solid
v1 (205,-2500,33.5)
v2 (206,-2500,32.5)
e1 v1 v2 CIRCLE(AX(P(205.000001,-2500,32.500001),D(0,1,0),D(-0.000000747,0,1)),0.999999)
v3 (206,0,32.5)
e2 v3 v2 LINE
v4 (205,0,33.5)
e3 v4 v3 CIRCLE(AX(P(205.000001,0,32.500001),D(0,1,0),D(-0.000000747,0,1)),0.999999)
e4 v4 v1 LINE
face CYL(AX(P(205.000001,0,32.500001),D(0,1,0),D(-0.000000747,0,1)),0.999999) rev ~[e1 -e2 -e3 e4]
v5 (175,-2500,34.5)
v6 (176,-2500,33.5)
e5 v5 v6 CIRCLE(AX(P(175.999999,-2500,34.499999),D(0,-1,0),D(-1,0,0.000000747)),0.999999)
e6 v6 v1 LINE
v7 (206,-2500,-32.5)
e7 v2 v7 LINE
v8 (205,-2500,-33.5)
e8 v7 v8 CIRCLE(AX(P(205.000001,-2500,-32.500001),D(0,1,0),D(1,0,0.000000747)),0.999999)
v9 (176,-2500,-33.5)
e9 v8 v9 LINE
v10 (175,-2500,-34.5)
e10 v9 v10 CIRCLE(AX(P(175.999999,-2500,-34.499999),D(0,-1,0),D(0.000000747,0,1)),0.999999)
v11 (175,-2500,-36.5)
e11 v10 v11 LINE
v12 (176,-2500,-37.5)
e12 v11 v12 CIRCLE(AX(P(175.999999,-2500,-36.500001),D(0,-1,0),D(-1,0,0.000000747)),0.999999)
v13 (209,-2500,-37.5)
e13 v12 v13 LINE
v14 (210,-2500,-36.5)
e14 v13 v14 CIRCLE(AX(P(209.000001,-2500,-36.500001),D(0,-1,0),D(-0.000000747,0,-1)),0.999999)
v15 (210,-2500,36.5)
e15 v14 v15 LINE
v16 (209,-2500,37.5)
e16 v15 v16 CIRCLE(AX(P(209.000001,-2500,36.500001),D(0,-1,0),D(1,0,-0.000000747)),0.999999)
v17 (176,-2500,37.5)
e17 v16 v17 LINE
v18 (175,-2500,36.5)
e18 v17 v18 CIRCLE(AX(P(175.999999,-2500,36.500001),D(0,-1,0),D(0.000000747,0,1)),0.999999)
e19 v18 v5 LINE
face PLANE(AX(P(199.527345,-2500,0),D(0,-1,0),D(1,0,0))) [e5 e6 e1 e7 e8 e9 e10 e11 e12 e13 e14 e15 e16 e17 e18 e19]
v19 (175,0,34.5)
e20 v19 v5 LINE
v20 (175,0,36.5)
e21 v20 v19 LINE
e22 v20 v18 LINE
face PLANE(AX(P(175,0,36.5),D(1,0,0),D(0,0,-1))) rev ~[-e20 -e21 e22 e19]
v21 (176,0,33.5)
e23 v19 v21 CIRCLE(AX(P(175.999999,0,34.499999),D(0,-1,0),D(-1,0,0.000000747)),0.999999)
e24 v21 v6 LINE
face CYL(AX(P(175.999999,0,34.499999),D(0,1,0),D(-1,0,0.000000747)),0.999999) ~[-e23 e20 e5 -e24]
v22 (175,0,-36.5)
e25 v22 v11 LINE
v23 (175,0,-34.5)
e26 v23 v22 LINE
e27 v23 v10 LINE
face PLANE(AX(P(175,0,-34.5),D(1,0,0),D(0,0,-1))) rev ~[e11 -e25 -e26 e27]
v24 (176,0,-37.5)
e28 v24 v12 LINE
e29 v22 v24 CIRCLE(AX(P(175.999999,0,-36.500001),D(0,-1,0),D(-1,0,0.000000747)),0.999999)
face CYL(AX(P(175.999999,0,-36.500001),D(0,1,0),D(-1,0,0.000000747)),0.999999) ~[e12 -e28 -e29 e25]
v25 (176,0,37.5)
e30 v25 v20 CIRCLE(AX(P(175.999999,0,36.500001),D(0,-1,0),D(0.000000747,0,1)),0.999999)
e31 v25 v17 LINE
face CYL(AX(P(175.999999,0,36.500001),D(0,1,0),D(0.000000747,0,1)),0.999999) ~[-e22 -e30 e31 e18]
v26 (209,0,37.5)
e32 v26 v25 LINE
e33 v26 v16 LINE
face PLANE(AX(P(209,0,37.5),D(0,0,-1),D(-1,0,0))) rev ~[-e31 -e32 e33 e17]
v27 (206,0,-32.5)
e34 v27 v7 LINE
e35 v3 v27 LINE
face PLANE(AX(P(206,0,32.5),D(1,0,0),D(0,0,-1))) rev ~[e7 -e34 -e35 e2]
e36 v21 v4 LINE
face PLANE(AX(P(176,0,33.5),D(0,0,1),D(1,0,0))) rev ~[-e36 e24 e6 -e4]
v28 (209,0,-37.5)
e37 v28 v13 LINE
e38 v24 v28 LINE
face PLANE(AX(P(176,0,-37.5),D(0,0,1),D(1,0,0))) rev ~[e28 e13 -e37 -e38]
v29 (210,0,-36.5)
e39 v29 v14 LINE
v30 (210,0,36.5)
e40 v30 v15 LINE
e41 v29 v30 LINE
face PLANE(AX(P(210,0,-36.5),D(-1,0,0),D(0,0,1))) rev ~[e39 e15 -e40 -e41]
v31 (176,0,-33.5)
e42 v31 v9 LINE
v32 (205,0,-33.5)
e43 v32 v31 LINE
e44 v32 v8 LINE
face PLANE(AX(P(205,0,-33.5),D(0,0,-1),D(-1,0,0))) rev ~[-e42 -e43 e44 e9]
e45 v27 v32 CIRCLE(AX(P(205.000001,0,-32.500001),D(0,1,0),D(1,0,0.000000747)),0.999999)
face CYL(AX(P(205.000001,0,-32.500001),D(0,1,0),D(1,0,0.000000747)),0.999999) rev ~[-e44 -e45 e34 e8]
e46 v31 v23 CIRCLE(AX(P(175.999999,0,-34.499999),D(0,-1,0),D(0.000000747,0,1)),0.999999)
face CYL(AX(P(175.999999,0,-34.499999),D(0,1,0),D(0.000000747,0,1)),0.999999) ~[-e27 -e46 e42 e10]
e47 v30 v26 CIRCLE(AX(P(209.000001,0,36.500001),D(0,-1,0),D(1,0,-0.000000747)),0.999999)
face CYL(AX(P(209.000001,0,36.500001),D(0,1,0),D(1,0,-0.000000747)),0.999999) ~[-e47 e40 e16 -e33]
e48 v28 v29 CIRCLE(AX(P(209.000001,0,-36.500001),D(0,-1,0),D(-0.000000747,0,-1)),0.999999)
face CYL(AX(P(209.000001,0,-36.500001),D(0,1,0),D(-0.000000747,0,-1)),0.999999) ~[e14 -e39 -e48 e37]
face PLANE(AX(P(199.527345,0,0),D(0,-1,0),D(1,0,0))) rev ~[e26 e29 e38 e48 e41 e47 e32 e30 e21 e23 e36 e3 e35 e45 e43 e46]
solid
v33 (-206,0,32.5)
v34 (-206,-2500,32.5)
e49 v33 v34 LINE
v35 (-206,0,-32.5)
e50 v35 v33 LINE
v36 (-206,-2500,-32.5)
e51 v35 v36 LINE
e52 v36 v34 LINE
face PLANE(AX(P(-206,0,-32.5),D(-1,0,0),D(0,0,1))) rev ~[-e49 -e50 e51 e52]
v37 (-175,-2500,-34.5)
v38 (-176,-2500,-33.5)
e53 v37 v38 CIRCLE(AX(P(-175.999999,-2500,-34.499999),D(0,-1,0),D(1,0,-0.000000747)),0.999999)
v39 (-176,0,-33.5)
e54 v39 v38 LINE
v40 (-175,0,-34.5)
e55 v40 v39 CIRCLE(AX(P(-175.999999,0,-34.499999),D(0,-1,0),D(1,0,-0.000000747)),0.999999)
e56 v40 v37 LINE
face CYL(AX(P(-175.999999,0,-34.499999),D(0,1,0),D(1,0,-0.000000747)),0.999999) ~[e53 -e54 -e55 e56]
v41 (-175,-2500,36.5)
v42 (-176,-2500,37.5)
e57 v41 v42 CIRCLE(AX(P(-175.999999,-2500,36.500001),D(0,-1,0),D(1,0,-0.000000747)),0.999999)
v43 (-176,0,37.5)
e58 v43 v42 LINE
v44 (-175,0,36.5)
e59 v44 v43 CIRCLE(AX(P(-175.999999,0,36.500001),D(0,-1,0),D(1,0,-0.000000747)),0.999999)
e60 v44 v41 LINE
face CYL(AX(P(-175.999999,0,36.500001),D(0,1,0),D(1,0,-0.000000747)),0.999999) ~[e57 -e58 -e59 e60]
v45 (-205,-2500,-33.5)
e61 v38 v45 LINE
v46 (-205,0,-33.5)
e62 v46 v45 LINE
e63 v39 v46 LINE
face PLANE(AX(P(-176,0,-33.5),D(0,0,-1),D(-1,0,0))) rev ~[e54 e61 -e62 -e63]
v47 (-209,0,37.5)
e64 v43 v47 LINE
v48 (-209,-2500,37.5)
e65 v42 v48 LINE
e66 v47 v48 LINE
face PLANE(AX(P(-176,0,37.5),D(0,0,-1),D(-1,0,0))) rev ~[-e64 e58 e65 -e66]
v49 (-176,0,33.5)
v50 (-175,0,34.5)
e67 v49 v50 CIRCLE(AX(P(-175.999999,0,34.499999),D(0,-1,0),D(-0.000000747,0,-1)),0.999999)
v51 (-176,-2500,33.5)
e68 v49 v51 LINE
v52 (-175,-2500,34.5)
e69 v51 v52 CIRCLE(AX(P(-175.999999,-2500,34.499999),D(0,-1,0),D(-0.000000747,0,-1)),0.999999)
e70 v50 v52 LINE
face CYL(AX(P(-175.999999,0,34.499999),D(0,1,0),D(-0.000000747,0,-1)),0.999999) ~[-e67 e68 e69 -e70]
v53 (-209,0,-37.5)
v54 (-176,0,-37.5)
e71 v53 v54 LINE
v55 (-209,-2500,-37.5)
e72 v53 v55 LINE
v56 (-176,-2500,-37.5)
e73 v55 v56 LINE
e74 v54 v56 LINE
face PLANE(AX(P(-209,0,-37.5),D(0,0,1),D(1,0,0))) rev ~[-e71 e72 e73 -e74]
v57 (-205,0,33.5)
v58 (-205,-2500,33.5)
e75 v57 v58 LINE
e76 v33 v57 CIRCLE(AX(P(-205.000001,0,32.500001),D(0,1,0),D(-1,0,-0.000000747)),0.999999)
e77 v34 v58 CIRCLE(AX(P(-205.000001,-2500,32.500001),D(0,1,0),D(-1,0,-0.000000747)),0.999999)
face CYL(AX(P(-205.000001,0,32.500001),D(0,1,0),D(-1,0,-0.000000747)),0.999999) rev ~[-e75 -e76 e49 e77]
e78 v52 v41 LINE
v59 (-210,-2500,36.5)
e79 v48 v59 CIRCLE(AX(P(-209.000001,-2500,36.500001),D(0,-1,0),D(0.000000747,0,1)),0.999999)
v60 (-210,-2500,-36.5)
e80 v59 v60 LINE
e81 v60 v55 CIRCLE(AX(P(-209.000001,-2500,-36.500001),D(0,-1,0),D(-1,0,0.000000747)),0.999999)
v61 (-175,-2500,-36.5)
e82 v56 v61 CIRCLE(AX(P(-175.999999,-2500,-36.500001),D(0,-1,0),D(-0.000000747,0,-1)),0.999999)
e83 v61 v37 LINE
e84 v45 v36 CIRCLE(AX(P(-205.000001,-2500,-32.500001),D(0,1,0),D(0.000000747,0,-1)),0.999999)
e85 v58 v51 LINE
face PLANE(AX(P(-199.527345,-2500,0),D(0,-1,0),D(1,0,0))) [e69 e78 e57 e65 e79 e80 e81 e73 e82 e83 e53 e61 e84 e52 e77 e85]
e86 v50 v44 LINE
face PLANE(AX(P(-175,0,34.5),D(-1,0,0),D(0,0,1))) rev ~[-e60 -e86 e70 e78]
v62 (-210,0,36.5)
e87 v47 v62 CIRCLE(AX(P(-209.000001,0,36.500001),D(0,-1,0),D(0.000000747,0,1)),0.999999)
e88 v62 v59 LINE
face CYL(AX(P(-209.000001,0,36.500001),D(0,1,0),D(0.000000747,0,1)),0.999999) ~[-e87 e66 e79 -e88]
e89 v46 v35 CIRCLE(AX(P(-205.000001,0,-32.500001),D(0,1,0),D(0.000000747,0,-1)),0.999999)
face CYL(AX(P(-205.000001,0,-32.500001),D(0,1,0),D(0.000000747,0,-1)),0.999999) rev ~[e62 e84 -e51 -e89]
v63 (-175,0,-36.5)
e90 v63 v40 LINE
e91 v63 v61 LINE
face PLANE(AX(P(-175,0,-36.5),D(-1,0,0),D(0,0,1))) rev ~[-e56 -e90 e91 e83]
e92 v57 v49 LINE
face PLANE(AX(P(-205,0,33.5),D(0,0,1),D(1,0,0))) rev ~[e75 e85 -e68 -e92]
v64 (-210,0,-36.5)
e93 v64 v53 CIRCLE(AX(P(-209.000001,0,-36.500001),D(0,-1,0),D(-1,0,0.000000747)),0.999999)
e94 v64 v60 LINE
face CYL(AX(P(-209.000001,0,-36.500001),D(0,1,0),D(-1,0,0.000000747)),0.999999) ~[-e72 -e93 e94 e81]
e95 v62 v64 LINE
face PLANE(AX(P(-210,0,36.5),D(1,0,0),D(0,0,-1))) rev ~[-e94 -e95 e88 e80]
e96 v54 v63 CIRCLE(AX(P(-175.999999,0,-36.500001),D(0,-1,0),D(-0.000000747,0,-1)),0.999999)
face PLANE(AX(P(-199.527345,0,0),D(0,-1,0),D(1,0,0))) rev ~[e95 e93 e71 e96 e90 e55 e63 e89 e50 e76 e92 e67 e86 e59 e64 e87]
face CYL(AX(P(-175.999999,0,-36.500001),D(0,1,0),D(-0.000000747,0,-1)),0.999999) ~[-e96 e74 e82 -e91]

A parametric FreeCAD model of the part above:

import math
import FreeCAD as App
import Part
import Sketcher
Q = App.Units.Quantity

doc = App.newDocument("Part")
body = doc.addObject("PartDesign::Body", "Body")
body.AllowCompound = True

# Sketch on XZ plane
sketch1 = body.newObject("Sketcher::SketchObject", "Sketch")
sketch1.AttachmentSupport = (doc.getObject("XZ_Plane"), [""])
sketch1.MapMode = "FlatFace"
sketch1.addGeometry([
    Part.ArcOfCircle(Part.Circle(App.Vector(-205, 32.5, 0), App.Vector(0, 0, 1), 1), math.radians(90), math.radians(180)),  # 0
    Part.LineSegment(App.Vector(-205, 33.5, 0), App.Vector(-176, 33.5, 0)),  # 1
    Part.ArcOfCircle(Part.Circle(App.Vector(-176, 34.5, 0), App.Vector(0, 0, 1), 1), math.radians(-90), math.radians(0)),  # 2
    Part.LineSegment(App.Vector(-175, 34.5, 0), App.Vector(-175, 36.5, 0)),  # 3
    Part.ArcOfCircle(Part.Circle(App.Vector(-176, 36.5, 0), App.Vector(0, 0, 1), 1), math.radians(0), math.radians(90)),  # 4
    Part.LineSegment(App.Vector(-176, 37.5, 0), App.Vector(-209, 37.5, 0)),  # 5
    Part.ArcOfCircle(Part.Circle(App.Vector(-209, 36.5, 0), App.Vector(0, 0, 1), 1), math.radians(90), math.radians(180)),  # 6
    Part.LineSegment(App.Vector(-210, 36.5, 0), App.Vector(-210, -36.5, 0)),  # 7
    Part.ArcOfCircle(Part.Circle(App.Vector(-209, -36.5, 0), App.Vector(0, 0, 1), 1), math.radians(180), math.radians(270)),  # 8
    Part.LineSegment(App.Vector(-209, -37.5, 0), App.Vector(-176, -37.5, 0)),  # 9
    Part.ArcOfCircle(Part.Circle(App.Vector(-176, -36.5, 0), App.Vector(0, 0, 1), 1), math.radians(-90), math.radians(0)),  # 10
    Part.LineSegment(App.Vector(-175, -36.5, 0), App.Vector(-175, -34.5, 0)),  # 11
    Part.ArcOfCircle(Part.Circle(App.Vector(-176, -34.5, 0), App.Vector(0, 0, 1), 1), math.radians(0), math.radians(90)),  # 12
    Part.LineSegment(App.Vector(-176, -33.5, 0), App.Vector(-205, -33.5, 0)),  # 13
    Part.ArcOfCircle(Part.Circle(App.Vector(-205, -32.5, 0), App.Vector(0, 0, 1), 1), math.radians(180), math.radians(270)),  # 14
    Part.LineSegment(App.Vector(-206, -32.5, 0), App.Vector(-206, 32.5, 0)),  # 15
    Part.LineSegment(App.Vector(206, 32.5, 0), App.Vector(206, -32.5, 0)),  # 16
    Part.ArcOfCircle(Part.Circle(App.Vector(205, -32.5, 0), App.Vector(0, 0, 1), 1), math.radians(-90), math.radians(0)),  # 17
    Part.LineSegment(App.Vector(205, -33.5, 0), App.Vector(176, -33.5, 0)),  # 18
    Part.ArcOfCircle(Part.Circle(App.Vector(176, -34.5, 0), App.Vector(0, 0, 1), 1), math.radians(90), math.radians(180)),  # 19
    Part.LineSegment(App.Vector(175, -34.5, 0), App.Vector(175, -36.5, 0)),  # 20
    Part.ArcOfCircle(Part.Circle(App.Vector(176, -36.5, 0), App.Vector(0, 0, 1), 1), math.radians(180), math.radians(270)),  # 21
    Part.LineSegment(App.Vector(176, -37.5, 0), App.Vector(209, -37.5, 0)),  # 22
    Part.ArcOfCircle(Part.Circle(App.Vector(209, -36.5, 0), App.Vector(0, 0, 1), 1), math.radians(-90), math.radians(0)),  # 23
    Part.LineSegment(App.Vector(210, -36.5, 0), App.Vector(210, 36.5, 0)),  # 24
    Part.ArcOfCircle(Part.Circle(App.Vector(209, 36.5, 0), App.Vector(0, 0, 1), 1), math.radians(0), math.radians(90)),  # 25
    Part.LineSegment(App.Vector(209, 37.5, 0), App.Vector(176, 37.5, 0)),  # 26
    Part.ArcOfCircle(Part.Circle(App.Vector(176, 36.5, 0), App.Vector(0, 0, 1), 1), math.radians(90), math.radians(180)),  # 27
    Part.LineSegment(App.Vector(175, 36.5, 0), App.Vector(175, 34.5, 0)),  # 28
    Part.ArcOfCircle(Part.Circle(App.Vector(176, 34.5, 0), App.Vector(0, 0, 1), 1), math.radians(180), math.radians(270)),  # 29
    Part.LineSegment(App.Vector(176, 33.5, 0), App.Vector(205, 33.5, 0)),  # 30
    Part.ArcOfCircle(Part.Circle(App.Vector(205, 32.5, 0), App.Vector(0, 0, 1), 1), math.radians(0), math.radians(90)),  # 31
], False)
sketch1.addConstraint([
    Sketcher.Constraint("Tangent", 0, 1, 1, 1),
    Sketcher.Constraint("Tangent", 1, 2, 2, 1),
    Sketcher.Constraint("Tangent", 2, 2, 3, 1),
    Sketcher.Constraint("Tangent", 3, 2, 4, 1),
    Sketcher.Constraint("Tangent", 4, 2, 5, 1),
    Sketcher.Constraint("Tangent", 5, 2, 6, 1),
    Sketcher.Constraint("Tangent", 6, 2, 7, 1),
    Sketcher.Constraint("Tangent", 7, 2, 8, 1),
    Sketcher.Constraint("Tangent", 8, 2, 9, 1),
    Sketcher.Constraint("Tangent", 9, 2, 10, 1),
    Sketcher.Constraint("Tangent", 10, 2, 11, 1),
    Sketcher.Constraint("Tangent", 11, 2, 12, 1),
    Sketcher.Constraint("Tangent", 12, 2, 13, 1),
    Sketcher.Constraint("Tangent", 13, 2, 14, 2),
    Sketcher.Constraint("Tangent", 14, 1, 15, 1),
    Sketcher.Constraint("Tangent", 15, 2, 0, 2),
    Sketcher.Constraint("Tangent", 16, 2, 17, 2),
    Sketcher.Constraint("Tangent", 17, 1, 18, 1),
    Sketcher.Constraint("Tangent", 18, 2, 19, 1),
    Sketcher.Constraint("Tangent", 19, 2, 20, 1),
    Sketcher.Constraint("Tangent", 20, 2, 21, 1),
    Sketcher.Constraint("Tangent", 21, 2, 22, 1),
    Sketcher.Constraint("Tangent", 22, 2, 23, 1),
    Sketcher.Constraint("Tangent", 23, 2, 24, 1),
    Sketcher.Constraint("Tangent", 24, 2, 25, 1),
    Sketcher.Constraint("Tangent", 25, 2, 26, 1),
    Sketcher.Constraint("Tangent", 26, 2, 27, 1),
    Sketcher.Constraint("Tangent", 27, 2, 28, 1),
    Sketcher.Constraint("Tangent", 28, 2, 29, 1),
    Sketcher.Constraint("Tangent", 29, 2, 30, 1),
    Sketcher.Constraint("Tangent", 30, 2, 31, 2),
    Sketcher.Constraint("Tangent", 31, 1, 16, 1),
    Sketcher.Constraint("Horizontal", 1),
    Sketcher.Constraint("Vertical", 3),
    Sketcher.Constraint("Horizontal", 5),
    Sketcher.Constraint("Vertical", 7),
    Sketcher.Constraint("Horizontal", 9),
    Sketcher.Constraint("Vertical", 11),
    Sketcher.Constraint("Horizontal", 13),
    Sketcher.Constraint("Vertical", 15),
    Sketcher.Constraint("Vertical", 16),
    Sketcher.Constraint("Horizontal", 18),
    Sketcher.Constraint("Vertical", 20),
    Sketcher.Constraint("Horizontal", 22),
    Sketcher.Constraint("Vertical", 24),
    Sketcher.Constraint("Horizontal", 26),
    Sketcher.Constraint("Vertical", 28),
    Sketcher.Constraint("Horizontal", 30),
    Sketcher.Constraint("Equal", 0, 2),
    Sketcher.Constraint("Equal", 2, 4),
    Sketcher.Constraint("Equal", 4, 6),
    Sketcher.Constraint("Equal", 6, 8),
    Sketcher.Constraint("Equal", 8, 10),
    Sketcher.Constraint("Equal", 10, 12),
    Sketcher.Constraint("Equal", 12, 14),
    Sketcher.Constraint("Equal", 14, 17),
    Sketcher.Constraint("Equal", 17, 19),
    Sketcher.Constraint("Equal", 19, 21),
    Sketcher.Constraint("Equal", 21, 23),
    Sketcher.Constraint("Equal", 23, 25),
    Sketcher.Constraint("Equal", 25, 27),
    Sketcher.Constraint("Equal", 27, 29),
    Sketcher.Constraint("Equal", 29, 31),
    Sketcher.Constraint("Symmetric", 0, 3, 17, 3, -1, 1),
    Sketcher.Constraint("Symmetric", 4, 3, 21, 3, -1, 1),
    Sketcher.Constraint("Symmetric", 8, 3, 25, 3, -1, 1),
    Sketcher.Constraint("Symmetric", 12, 3, 29, 3, -1, 1),
    Sketcher.Constraint("Symmetric", 12, 3, 19, 3, -2),
    Sketcher.Constraint("Horizontal", 10, 3, 21, 3),
    Sketcher.Constraint("Radius", 0, Q("0.999999 mm")),
    Sketcher.Constraint("DistanceX", 1, 1, 1, 2, Q("29 mm")),
    Sketcher.Constraint("DistanceX", 5, 2, 5, 1, Q("33 mm")),
    Sketcher.Constraint("DistanceY", 3, 1, 3, 2, Q("2 mm")),
    Sketcher.Constraint("DistanceY", 7, 2, 7, 1, Q("73 mm")),
    Sketcher.Constraint("DistanceX", 0, 3, -1, 1, Q("205.000001 mm")),
])
pad1 = body.newObject("PartDesign::Pad", "Pad")
pad1.Profile = sketch1
pad1.Length = 2500

doc.recompute()
